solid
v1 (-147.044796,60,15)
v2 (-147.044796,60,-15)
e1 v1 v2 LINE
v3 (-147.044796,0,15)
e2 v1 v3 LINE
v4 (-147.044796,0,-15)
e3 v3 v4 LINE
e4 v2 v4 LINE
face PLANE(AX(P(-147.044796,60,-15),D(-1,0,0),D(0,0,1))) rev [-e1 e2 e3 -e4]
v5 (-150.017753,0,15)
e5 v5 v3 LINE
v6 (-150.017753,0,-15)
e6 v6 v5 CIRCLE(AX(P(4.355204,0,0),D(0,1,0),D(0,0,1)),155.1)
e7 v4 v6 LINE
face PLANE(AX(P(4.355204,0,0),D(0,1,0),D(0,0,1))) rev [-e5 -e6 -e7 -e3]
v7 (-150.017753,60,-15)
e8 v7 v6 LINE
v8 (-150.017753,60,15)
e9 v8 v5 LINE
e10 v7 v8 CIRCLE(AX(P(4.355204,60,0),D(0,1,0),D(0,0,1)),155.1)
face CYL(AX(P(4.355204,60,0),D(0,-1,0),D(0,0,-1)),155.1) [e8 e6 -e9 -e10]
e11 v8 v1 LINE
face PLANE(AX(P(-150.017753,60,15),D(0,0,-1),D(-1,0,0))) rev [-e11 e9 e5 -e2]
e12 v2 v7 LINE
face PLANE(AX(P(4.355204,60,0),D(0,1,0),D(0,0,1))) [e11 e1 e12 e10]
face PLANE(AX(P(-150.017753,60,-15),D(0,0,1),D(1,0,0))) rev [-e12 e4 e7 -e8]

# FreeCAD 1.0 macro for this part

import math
import FreeCAD as App
import Part
import Sketcher

V = App.Vector
Q = App.Units.Quantity

doc = App.newDocument("Part")
body = doc.addObject("PartDesign::Body", "Body")

# Sketch on XZ plane
sketch1 = doc.addObject("Sketcher::SketchObject", "Sketch")
body.addObject(sketch1)
sketch1.AttachmentSupport = (doc.XZ_Plane, [""])
sketch1.MapMode = "FlatFace"
sketch1.addGeometry([
    Part.LineSegment(V(-147.044796, -15, 0), V(-150.017753, -15, 0)),
    Part.ArcOfCircle(Part.Circle(V(4.355204, 0, 0), V(0, 0, 1), 155.1), math.radians(174.450148), math.radians(185.549852)),
    Part.LineSegment(V(-150.017753, 15, 0), V(-147.044796, 15, 0)),
    Part.LineSegment(V(-147.044796, 15, 0), V(-147.044796, -15, 0)),
], False)
sketch1.addConstraint([
    Sketcher.Constraint("Coincident", 0, 2, 1, 2),
    Sketcher.Constraint("Coincident", 1, 1, 2, 1),
    Sketcher.Constraint("Coincident", 2, 2, 3, 1),
    Sketcher.Constraint("Coincident", 3, 2, 0, 1),
    Sketcher.Constraint("Horizontal", 0),
    Sketcher.Constraint("Horizontal", 2),
    Sketcher.Constraint("Vertical", 3),
    Sketcher.Constraint("Symmetric", 0, 2, 1, 1, -1),
    Sketcher.Constraint("Radius", 1, Q("155.1 mm")),
    Sketcher.Constraint("DistanceY", 3, 2, 3, 1, Q("30 mm")),
    Sketcher.Constraint("DistanceX", 2, 2, 1, 3, Q("151.4 mm")),
    Sketcher.Constraint("DistanceX", -1, 1, 1, 3, Q("4.355204 mm")),
])
pad1 = doc.addObject("PartDesign::Pad", "Pad")
body.addObject(pad1)
pad1.Profile = sketch1
pad1.Length = 60
pad1.Reversed = True

doc.recompute()
